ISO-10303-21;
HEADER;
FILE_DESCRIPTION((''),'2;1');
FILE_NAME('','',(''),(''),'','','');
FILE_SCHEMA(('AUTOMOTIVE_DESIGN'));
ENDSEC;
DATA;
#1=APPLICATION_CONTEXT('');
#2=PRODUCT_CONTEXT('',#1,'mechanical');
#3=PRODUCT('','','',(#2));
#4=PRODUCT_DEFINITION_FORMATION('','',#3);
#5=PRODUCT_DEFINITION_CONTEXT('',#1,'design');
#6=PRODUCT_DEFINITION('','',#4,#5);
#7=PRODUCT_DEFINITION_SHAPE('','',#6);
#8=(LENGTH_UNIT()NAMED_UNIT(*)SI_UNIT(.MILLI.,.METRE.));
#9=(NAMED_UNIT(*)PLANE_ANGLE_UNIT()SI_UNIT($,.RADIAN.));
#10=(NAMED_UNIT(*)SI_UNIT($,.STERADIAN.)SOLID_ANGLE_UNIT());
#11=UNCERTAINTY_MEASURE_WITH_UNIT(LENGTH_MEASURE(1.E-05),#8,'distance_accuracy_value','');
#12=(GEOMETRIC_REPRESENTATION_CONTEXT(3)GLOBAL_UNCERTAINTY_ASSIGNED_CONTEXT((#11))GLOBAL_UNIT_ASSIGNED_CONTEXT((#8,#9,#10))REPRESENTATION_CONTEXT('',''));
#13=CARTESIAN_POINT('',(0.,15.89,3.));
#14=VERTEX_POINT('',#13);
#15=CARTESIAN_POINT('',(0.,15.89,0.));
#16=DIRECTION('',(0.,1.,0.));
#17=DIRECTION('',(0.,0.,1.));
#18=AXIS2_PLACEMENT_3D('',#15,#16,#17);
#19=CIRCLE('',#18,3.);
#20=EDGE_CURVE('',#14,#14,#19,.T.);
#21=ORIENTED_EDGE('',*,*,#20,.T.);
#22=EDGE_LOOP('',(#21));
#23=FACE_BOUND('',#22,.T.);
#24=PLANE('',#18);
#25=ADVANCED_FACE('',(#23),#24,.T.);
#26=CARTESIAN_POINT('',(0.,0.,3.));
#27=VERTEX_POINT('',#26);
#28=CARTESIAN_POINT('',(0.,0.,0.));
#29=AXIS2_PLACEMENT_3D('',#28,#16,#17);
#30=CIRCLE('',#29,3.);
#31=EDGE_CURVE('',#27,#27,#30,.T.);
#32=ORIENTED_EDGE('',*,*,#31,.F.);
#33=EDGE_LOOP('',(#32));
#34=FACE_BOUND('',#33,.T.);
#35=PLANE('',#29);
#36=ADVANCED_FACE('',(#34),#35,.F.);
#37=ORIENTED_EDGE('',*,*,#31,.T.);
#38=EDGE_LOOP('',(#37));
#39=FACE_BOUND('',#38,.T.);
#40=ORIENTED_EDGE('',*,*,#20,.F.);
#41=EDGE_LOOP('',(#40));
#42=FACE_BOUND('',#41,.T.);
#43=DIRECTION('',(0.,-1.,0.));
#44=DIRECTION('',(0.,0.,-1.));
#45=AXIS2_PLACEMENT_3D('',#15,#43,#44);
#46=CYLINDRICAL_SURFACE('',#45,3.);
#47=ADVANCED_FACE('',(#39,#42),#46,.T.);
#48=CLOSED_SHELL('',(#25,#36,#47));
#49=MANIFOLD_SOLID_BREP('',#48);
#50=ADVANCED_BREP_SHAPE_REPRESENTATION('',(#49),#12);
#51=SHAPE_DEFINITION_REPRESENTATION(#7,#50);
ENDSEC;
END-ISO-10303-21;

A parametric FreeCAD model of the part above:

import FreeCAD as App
import Part
import Sketcher
from FreeCAD import Vector
Q = App.Units.Quantity

doc = App.newDocument("Part")
body = doc.addObject("PartDesign::Body", "Body")

# Sketch on XZ plane
sketch1 = body.newObject("Sketcher::SketchObject", "Sketch")
sketch1.AttachmentSupport = (doc.getObject("XZ_Plane"), [""])
sketch1.MapMode = "FlatFace"
sketch1.addGeometry(Part.Circle(Vector(0, 0, 0), Vector(0, 0, 1), 3), False)
sketch1.addConstraint([
    Sketcher.Constraint("Coincident", 0, 3, -1, 1),
    Sketcher.Constraint("Diameter", 0, Q("6 mm")),
])
pad1 = body.newObject("PartDesign::Pad", "Pad")
pad1.Profile = sketch1
pad1.Length = 15.89
pad1.Reversed = True

doc.recompute()
